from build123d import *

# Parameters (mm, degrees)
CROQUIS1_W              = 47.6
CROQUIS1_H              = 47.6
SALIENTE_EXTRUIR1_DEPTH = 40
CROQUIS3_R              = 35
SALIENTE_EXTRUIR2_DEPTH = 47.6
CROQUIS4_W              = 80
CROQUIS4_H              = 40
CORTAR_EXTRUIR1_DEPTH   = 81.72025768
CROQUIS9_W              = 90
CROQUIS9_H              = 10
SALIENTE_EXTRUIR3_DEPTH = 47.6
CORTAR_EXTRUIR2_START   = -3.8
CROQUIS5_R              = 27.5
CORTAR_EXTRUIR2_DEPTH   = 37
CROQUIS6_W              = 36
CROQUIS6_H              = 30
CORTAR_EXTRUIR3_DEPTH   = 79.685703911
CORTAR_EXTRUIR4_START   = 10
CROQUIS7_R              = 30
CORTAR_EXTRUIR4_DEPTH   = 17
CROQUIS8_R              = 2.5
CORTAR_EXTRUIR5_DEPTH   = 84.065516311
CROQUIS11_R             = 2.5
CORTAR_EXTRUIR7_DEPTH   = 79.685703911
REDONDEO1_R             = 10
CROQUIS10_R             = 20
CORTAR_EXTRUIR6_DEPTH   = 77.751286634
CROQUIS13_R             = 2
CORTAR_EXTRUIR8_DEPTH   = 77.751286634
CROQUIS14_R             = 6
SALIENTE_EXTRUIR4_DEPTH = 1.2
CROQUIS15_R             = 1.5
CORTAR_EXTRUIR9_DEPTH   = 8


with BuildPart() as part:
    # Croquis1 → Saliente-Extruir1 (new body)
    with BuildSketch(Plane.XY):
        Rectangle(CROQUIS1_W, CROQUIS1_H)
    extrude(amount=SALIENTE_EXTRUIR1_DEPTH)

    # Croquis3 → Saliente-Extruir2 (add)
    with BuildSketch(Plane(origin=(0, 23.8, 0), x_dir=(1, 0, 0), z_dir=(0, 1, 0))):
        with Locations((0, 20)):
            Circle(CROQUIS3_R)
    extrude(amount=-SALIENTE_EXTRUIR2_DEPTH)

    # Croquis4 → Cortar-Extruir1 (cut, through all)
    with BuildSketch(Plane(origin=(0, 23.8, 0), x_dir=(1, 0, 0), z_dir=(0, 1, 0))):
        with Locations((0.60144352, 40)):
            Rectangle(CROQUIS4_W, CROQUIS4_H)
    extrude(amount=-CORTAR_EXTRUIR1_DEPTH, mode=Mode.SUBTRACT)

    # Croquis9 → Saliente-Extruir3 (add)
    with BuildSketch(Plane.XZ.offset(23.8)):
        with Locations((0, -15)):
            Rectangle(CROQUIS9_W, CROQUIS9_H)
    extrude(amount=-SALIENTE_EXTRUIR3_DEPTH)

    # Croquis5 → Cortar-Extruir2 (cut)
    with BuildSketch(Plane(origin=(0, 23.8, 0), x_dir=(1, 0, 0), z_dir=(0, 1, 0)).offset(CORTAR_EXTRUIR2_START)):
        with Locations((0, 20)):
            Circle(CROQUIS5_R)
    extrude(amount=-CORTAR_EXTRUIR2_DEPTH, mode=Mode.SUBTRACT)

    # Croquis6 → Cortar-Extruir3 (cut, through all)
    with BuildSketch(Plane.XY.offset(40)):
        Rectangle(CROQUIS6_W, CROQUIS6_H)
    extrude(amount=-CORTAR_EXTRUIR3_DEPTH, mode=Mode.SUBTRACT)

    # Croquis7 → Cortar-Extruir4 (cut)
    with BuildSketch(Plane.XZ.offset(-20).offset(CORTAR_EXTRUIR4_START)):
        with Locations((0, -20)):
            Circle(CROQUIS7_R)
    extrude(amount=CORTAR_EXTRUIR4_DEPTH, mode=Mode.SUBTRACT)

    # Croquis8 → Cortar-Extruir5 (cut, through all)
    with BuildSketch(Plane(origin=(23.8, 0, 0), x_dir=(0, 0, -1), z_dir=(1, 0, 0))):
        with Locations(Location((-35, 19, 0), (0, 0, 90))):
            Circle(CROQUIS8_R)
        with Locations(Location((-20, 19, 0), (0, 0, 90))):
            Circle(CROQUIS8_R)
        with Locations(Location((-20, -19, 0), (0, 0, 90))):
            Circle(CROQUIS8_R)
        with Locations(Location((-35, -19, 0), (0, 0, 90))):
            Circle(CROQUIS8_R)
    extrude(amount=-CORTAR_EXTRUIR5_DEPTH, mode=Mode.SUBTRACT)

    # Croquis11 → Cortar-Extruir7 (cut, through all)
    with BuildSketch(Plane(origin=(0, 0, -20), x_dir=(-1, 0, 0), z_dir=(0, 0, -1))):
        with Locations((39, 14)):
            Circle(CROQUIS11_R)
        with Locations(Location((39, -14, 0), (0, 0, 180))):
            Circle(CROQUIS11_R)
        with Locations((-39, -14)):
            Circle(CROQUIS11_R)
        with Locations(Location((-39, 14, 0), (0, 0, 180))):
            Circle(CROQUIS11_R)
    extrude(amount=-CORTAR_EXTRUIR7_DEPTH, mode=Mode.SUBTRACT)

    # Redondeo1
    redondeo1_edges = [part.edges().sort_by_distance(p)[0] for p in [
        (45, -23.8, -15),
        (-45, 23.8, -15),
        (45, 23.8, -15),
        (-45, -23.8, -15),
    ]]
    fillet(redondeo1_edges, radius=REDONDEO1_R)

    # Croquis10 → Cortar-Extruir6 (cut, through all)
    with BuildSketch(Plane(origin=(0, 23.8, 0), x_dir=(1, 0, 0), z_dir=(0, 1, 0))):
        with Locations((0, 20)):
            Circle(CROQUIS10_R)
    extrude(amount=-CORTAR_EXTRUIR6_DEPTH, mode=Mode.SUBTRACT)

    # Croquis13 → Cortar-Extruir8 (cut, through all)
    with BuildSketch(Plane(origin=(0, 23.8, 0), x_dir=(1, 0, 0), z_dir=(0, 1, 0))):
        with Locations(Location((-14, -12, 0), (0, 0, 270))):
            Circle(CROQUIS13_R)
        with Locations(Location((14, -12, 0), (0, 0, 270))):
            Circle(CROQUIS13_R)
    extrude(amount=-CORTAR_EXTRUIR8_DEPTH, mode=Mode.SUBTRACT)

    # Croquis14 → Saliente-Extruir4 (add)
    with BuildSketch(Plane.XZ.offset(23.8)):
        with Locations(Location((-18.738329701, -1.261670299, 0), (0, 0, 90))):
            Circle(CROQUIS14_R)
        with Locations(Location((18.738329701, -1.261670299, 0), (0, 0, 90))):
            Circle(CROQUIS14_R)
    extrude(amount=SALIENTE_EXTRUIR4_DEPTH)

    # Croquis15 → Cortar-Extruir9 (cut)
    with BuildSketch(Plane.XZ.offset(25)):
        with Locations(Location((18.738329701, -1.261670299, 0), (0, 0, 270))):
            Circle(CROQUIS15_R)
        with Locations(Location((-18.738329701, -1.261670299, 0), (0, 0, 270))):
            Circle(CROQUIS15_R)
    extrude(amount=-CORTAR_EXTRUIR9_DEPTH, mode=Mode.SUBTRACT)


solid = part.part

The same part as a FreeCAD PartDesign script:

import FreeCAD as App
import Part
import Sketcher
from FreeCAD import Vector
Q = App.Units.Quantity


def edges_at(feature, points):
    """Names of the edges that pass closest to the given points."""
    edges = feature.Shape.Edges
    near = lambda p: min(range(len(edges)), key=lambda i: edges[i].distToShape(Part.Vertex(*p))[0])
    return sorted({f"Edge{near(p) + 1}" for p in points})


def add_polygon(sketch, points):
    """Adds a closed chain of lines whose ends are joined by coincident constraints."""
    first, n = sketch.GeometryCount, len(points)
    for a, b in zip(points, points[1:] + points[:1]):
        sketch.addGeometry(Part.LineSegment(App.Vector(*a, 0), App.Vector(*b, 0)), False)
    for i in range(n):
        sketch.addConstraint(Sketcher.Constraint("Coincident", first + i, 2, first + (i + 1) % n, 1))

doc = App.newDocument("Part")
params = doc.addObject("Spreadsheet::Sheet", "Params")
for row, (alias, value) in enumerate([
    ("sketch1_width", "47.6 mm"),
    ("pad1_length", "40 mm"),
    ("sketch2_diameter", "70 mm"),
    ("pad2_length", "47.6 mm"),
    ("sketch3_width", "80 mm"),
    ("sketch3_height", "40 mm"),
    ("sketch4_width", "90 mm"),
    ("sketch4_height", "10 mm"),
    ("pad3_length", "47.6 mm"),
    ("sketch5_diameter", "55 mm"),
    ("pocket2_length", "37 mm"),
    ("sketch6_width", "36 mm"),
    ("sketch6_height", "30 mm"),
    ("sketch7_diameter", "60 mm"),
    ("pocket4_length", "17 mm"),
    ("sketch8_diameter", "5 mm"),
    ("sketch9_diameter", "5 mm"),
    ("fillet_radius", "10 mm"),
    ("sketch10_diameter", "40 mm"),
    ("sketch11_diameter", "4 mm"),
    ("sketch12_diameter", "12 mm"),
    ("pad4_length", "1.2 mm"),
    ("sketch13_diameter", "3 mm"),
    ("pocket9_length", "8 mm"),
], start=1):
    params.set(f"A{row}", alias)
    params.set(f"B{row}", "=" + value)
    params.setAlias(f"B{row}", alias)

body = doc.addObject("PartDesign::Body", "Body")

# Sketch on XY plane
sketch1 = doc.addObject("Sketcher::SketchObject", "Sketch")
body.addObject(sketch1)
sketch1.AttachmentSupport = (doc.XY_Plane, [""])
sketch1.MapMode = "FlatFace"
add_polygon(sketch1, [(-23.8, 23.8), (-23.8, -23.8), (23.8, -23.8), (23.8, 23.8)])  # lines 0-3
sketch1.addConstraint([
    Sketcher.Constraint("Vertical", 0),
    Sketcher.Constraint("Horizontal", 1),
    Sketcher.Constraint("Vertical", 2),
    Sketcher.Constraint("Horizontal", 3),
    Sketcher.Constraint("Symmetric", 0, 2, 2, 2, -1, 1),
    Sketcher.Constraint("Equal", 3, 0),
    Sketcher.Constraint("DistanceX", 1, 1, 1, 2, Q("47.6 mm")),
])
sketch1.setExpression("Constraints[10]", "Params.sketch1_width")
pad1 = doc.addObject("PartDesign::Pad", "Pad")
body.addObject(pad1)
pad1.Profile = sketch1
pad1.setExpression("Length", "Params.pad1_length")

# Sketch on XZ plane
sketch2 = doc.addObject("Sketcher::SketchObject", "Sketch001")
body.addObject(sketch2)
sketch2.AttachmentSupport = (doc.XZ_Plane, [""])
sketch2.MapMode = "FlatFace"
sketch2.AttachmentOffset = App.Placement(Vector(0, 0, -23.8), App.Rotation())
sketch2.addGeometry(Part.Circle(Vector(0, -20, 0), Vector(0, 0, 1), 35), False)
sketch2.addConstraint([
    Sketcher.Constraint("PointOnObject", 0, 3, -2),
    Sketcher.Constraint("Diameter", 0, Q("70 mm")),
    Sketcher.Constraint("DistanceY", 0, 3, -1, 1, Q("20 mm")),
])
sketch2.setExpression("Constraints[1]", "Params.sketch2_diameter")
pad2 = doc.addObject("PartDesign::Pad", "Pad001")
body.addObject(pad2)
pad2.Profile = sketch2
pad2.setExpression("Length", "Params.pad2_length")

# Sketch on XZ plane
sketch3 = doc.addObject("Sketcher::SketchObject", "Sketch002")
body.addObject(sketch3)
sketch3.AttachmentSupport = (doc.XZ_Plane, [""])
sketch3.MapMode = "FlatFace"
sketch3.AttachmentOffset = App.Placement(Vector(0, 0, -23.8), App.Rotation())
add_polygon(sketch3, [(-39.398556, -60), (-39.398556, -20), (40.601444, -20), (40.601444, -60)])  # lines 0-3
sketch3.addConstraint([
    Sketcher.Constraint("Vertical", 0),
    Sketcher.Constraint("Horizontal", 1),
    Sketcher.Constraint("Vertical", 2),
    Sketcher.Constraint("Horizontal", 3),
    Sketcher.Constraint("DistanceX", 1, 1, 1, 2, Q("80 mm")),
    Sketcher.Constraint("DistanceY", 0, 1, 0, 2, Q("40 mm")),
    Sketcher.Constraint("DistanceY", 0, 2, -1, 1, Q("20 mm")),
    Sketcher.Constraint("DistanceX", 0, 2, -1, 1, Q("39.398556 mm")),
])
sketch3.setExpression("Constraints[8]", "Params.sketch3_width")
sketch3.setExpression("Constraints[9]", "Params.sketch3_height")
pocket1 = doc.addObject("PartDesign::Pocket", "Pocket")
body.addObject(pocket1)
pocket1.Profile = sketch3
pocket1.Type = "ThroughAll"
pocket1.Reversed = True

# Sketch on XZ plane
sketch4 = doc.addObject("Sketcher::SketchObject", "Sketch003")
body.addObject(sketch4)
sketch4.AttachmentSupport = (doc.XZ_Plane, [""])
sketch4.MapMode = "FlatFace"
sketch4.AttachmentOffset = App.Placement(Vector(0, 0, 23.8), App.Rotation())
add_polygon(sketch4, [(-45, -10), (-45, -20), (45, -20), (45, -10)])  # lines 0-3
sketch4.addConstraint([
    Sketcher.Constraint("Vertical", 0),
    Sketcher.Constraint("Horizontal", 1),
    Sketcher.Constraint("Vertical", 2),
    Sketcher.Constraint("Horizontal", 3),
    Sketcher.Constraint("DistanceX", 1, 1, 1, 2, Q("90 mm")),
    Sketcher.Constraint("DistanceY", 0, 2, 0, 1, Q("10 mm")),
    Sketcher.Constraint("DistanceX", 0, 2, -1, 1, Q("45 mm")),
    Sketcher.Constraint("DistanceY", 0, 2, -1, 1, Q("20 mm")),
])
sketch4.setExpression("Constraints[8]", "Params.sketch4_width")
sketch4.setExpression("Constraints[9]", "Params.sketch4_height")
pad3 = doc.addObject("PartDesign::Pad", "Pad002")
body.addObject(pad3)
pad3.Profile = sketch4
pad3.setExpression("Length", "Params.pad3_length")
pad3.Reversed = True

# Sketch on XZ plane
sketch5 = doc.addObject("Sketcher::SketchObject", "Sketch004")
body.addObject(sketch5)
sketch5.AttachmentSupport = (doc.XZ_Plane, [""])
sketch5.MapMode = "FlatFace"
sketch5.AttachmentOffset = App.Placement(Vector(0, 0, -20), App.Rotation())
sketch5.addGeometry(Part.Circle(Vector(0, -20, 0), Vector(0, 0, 1), 27.5), False)
sketch5.addConstraint([
    Sketcher.Constraint("PointOnObject", 0, 3, -2),
    Sketcher.Constraint("Diameter", 0, Q("55 mm")),
    Sketcher.Constraint("DistanceY", 0, 3, -1, 1, Q("20 mm")),
])
sketch5.setExpression("Constraints[1]", "Params.sketch5_diameter")
pocket2 = doc.addObject("PartDesign::Pocket", "Pocket001")
body.addObject(pocket2)
pocket2.Profile = sketch5
pocket2.setExpression("Length", "Params.pocket2_length")
pocket2.Reversed = True

# Sketch on XY plane
sketch6 = doc.addObject("Sketcher::SketchObject", "Sketch005")
body.addObject(sketch6)
sketch6.AttachmentSupport = (doc.XY_Plane, [""])
sketch6.MapMode = "FlatFace"
sketch6.AttachmentOffset = App.Placement(Vector(0, 0, 40), App.Rotation())
add_polygon(sketch6, [(-18, 15), (-18, -15), (18, -15), (18, 15)])  # lines 0-3
sketch6.addConstraint([
    Sketcher.Constraint("Vertical", 0),
    Sketcher.Constraint("Horizontal", 1),
    Sketcher.Constraint("Vertical", 2),
    Sketcher.Constraint("Horizontal", 3),
    Sketcher.Constraint("Symmetric", 0, 2, 2, 2, -1, 1),
    Sketcher.Constraint("DistanceX", 1, 1, 1, 2, Q("36 mm")),
    Sketcher.Constraint("DistanceY", 0, 2, 0, 1, Q("30 mm")),
])
sketch6.setExpression("Constraints[9]", "Params.sketch6_width")
sketch6.setExpression("Constraints[10]", "Params.sketch6_height")
pocket3 = doc.addObject("PartDesign::Pocket", "Pocket002")
body.addObject(pocket3)
pocket3.Profile = sketch6
pocket3.Type = "ThroughAll"

# Sketch on XZ plane
sketch7 = doc.addObject("Sketcher::SketchObject", "Sketch006")
body.addObject(sketch7)
sketch7.AttachmentSupport = (doc.XZ_Plane, [""])
sketch7.MapMode = "FlatFace"
sketch7.AttachmentOffset = App.Placement(Vector(0, 0, -10), App.Rotation())
sketch7.addGeometry(Part.Circle(Vector(0, -20, 0), Vector(0, 0, 1), 30), False)
sketch7.addConstraint([
    Sketcher.Constraint("PointOnObject", 0, 3, -2),
    Sketcher.Constraint("Diameter", 0, Q("60 mm")),
    Sketcher.Constraint("DistanceY", 0, 3, -1, 1, Q("20 mm")),
])
sketch7.setExpression("Constraints[1]", "Params.sketch7_diameter")
pocket4 = doc.addObject("PartDesign::Pocket", "Pocket003")
body.addObject(pocket4)
pocket4.Profile = sketch7
pocket4.setExpression("Length", "Params.pocket4_length")
pocket4.Reversed = True

# Sketch on YZ plane
sketch8 = doc.addObject("Sketcher::SketchObject", "Sketch007")
body.addObject(sketch8)
sketch8.AttachmentSupport = (doc.YZ_Plane, [""])
sketch8.MapMode = "FlatFace"
sketch8.AttachmentOffset = App.Placement(Vector(0, 0, 23.8), App.Rotation())
sketch8.addGeometry([
    Part.Circle(Vector(19, 35, 0), Vector(0, 0, 1), 2.5),
    Part.Circle(Vector(19, 20, 0), Vector(0, 0, 1), 2.5),
    Part.Circle(Vector(-19, 20, 0), Vector(0, 0, 1), 2.5),
    Part.Circle(Vector(-19, 35, 0), Vector(0, 0, 1), 2.5),
], False)
sketch8.addConstraint([
    Sketcher.Constraint("Equal", 0, 1),
    Sketcher.Constraint("Equal", 1, 2),
    Sketcher.Constraint("Equal", 2, 3),
    Sketcher.Constraint("Symmetric", 1, 3, 2, 3, -2),
    Sketcher.Constraint("Symmetric", 0, 3, 3, 3, -2),
    Sketcher.Constraint("Vertical", 0, 3, 1, 3),
    Sketcher.Constraint("Diameter", 0, Q("5 mm")),
    Sketcher.Constraint("DistanceX", -1, 1, 0, 3, Q("19 mm")),
    Sketcher.Constraint("DistanceY", -1, 1, 0, 3, Q("35 mm")),
    Sketcher.Constraint("DistanceY", -1, 1, 1, 3, Q("20 mm")),
])
sketch8.setExpression("Constraints[6]", "Params.sketch8_diameter")
pocket5 = doc.addObject("PartDesign::Pocket", "Pocket004")
body.addObject(pocket5)
pocket5.Profile = sketch8
pocket5.Type = "ThroughAll"

# Sketch on XY plane
sketch9 = doc.addObject("Sketcher::SketchObject", "Sketch008")
body.addObject(sketch9)
sketch9.AttachmentSupport = (doc.XY_Plane, [""])
sketch9.MapMode = "FlatFace"
sketch9.AttachmentOffset = App.Placement(Vector(0, 0, -20), App.Rotation())
sketch9.addGeometry([
    Part.Circle(Vector(-39, 14, 0), Vector(0, 0, 1), 2.5),
    Part.Circle(Vector(-39, -14, 0), Vector(0, 0, 1), 2.5),
    Part.Circle(Vector(39, -14, 0), Vector(0, 0, 1), 2.5),
    Part.Circle(Vector(39, 14, 0), Vector(0, 0, 1), 2.5),
], False)
sketch9.addConstraint([
    Sketcher.Constraint("Equal", 0, 1),
    Sketcher.Constraint("Equal", 1, 2),
    Sketcher.Constraint("Equal", 2, 3),
    Sketcher.Constraint("Symmetric", 0, 3, 2, 3, -1, 1),
    Sketcher.Constraint("Symmetric", 1, 3, 3, 3, -1, 1),
    Sketcher.Constraint("Symmetric", 1, 3, 2, 3, -2),
    Sketcher.Constraint("Diameter", 0, Q("5 mm")),
    Sketcher.Constraint("DistanceX", 0, 3, -1, 1, Q("39 mm")),
    Sketcher.Constraint("DistanceY", -1, 1, 0, 3, Q("14 mm")),
])
sketch9.setExpression("Constraints[6]", "Params.sketch9_diameter")
pocket6 = doc.addObject("PartDesign::Pocket", "Pocket005")
body.addObject(pocket6)
pocket6.Profile = sketch9
pocket6.Type = "ThroughAll"
pocket6.Reversed = True
doc.recompute()

fillet = doc.addObject("PartDesign::Fillet", "Fillet")
body.addObject(fillet)
fillet.Base = (pocket6, edges_at(pocket6, [
    (45, -23.8, -15),
    (-45, 23.8, -15),
    (45, 23.8, -15),
    (-45, -23.8, -15),
]))
fillet.setExpression("Radius", "Params.fillet_radius")

# Sketch on XZ plane
sketch10 = doc.addObject("Sketcher::SketchObject", "Sketch009")
body.addObject(sketch10)
sketch10.AttachmentSupport = (doc.XZ_Plane, [""])
sketch10.MapMode = "FlatFace"
sketch10.AttachmentOffset = App.Placement(Vector(0, 0, -23.8), App.Rotation())
sketch10.addGeometry(Part.Circle(Vector(0, -20, 0), Vector(0, 0, 1), 20), False)
sketch10.addConstraint([
    Sketcher.Constraint("PointOnObject", 0, 3, -2),
    Sketcher.Constraint("Diameter", 0, Q("40 mm")),
    Sketcher.Constraint("DistanceY", 0, 3, -1, 1, Q("20 mm")),
])
sketch10.setExpression("Constraints[1]", "Params.sketch10_diameter")
pocket7 = doc.addObject("PartDesign::Pocket", "Pocket006")
body.addObject(pocket7)
pocket7.Profile = sketch10
pocket7.Type = "ThroughAll"
pocket7.Reversed = True

# Sketch on XZ plane
sketch11 = doc.addObject("Sketcher::SketchObject", "Sketch010")
body.addObject(sketch11)
sketch11.AttachmentSupport = (doc.XZ_Plane, [""])
sketch11.MapMode = "FlatFace"
sketch11.AttachmentOffset = App.Placement(Vector(0, 0, -23.8), App.Rotation())
sketch11.addGeometry([
    Part.Circle(Vector(-14, 12, 0), Vector(0, 0, 1), 2),
    Part.Circle(Vector(14, 12, 0), Vector(0, 0, 1), 2),
], False)
sketch11.addConstraint([
    Sketcher.Constraint("Equal", 0, 1),
    Sketcher.Constraint("Symmetric", 0, 3, 1, 3, -2),
    Sketcher.Constraint("Diameter", 0, Q("4 mm")),
    Sketcher.Constraint("DistanceX", 0, 3, -1, 1, Q("14 mm")),
    Sketcher.Constraint("DistanceY", -1, 1, 0, 3, Q("12 mm")),
])
sketch11.setExpression("Constraints[2]", "Params.sketch11_diameter")
pocket8 = doc.addObject("PartDesign::Pocket", "Pocket007")
body.addObject(pocket8)
pocket8.Profile = sketch11
pocket8.Type = "ThroughAll"
pocket8.Reversed = True

# Sketch on XZ plane
sketch12 = doc.addObject("Sketcher::SketchObject", "Sketch011")
body.addObject(sketch12)
sketch12.AttachmentSupport = (doc.XZ_Plane, [""])
sketch12.MapMode = "FlatFace"
sketch12.AttachmentOffset = App.Placement(Vector(0, 0, 23.8), App.Rotation())
sketch12.addGeometry([
    Part.Circle(Vector(-18.73833, -1.26167, 0), Vector(0, 0, 1), 6),
    Part.Circle(Vector(18.73833, -1.26167, 0), Vector(0, 0, 1), 6),
], False)
sketch12.addConstraint([
    Sketcher.Constraint("Equal", 0, 1),
    Sketcher.Constraint("Symmetric", 0, 3, 1, 3, -2),
    Sketcher.Constraint("Diameter", 0, Q("12 mm")),
    Sketcher.Constraint("DistanceX", 0, 3, -1, 1, Q("18.73833 mm")),
    Sketcher.Constraint("DistanceY", 0, 3, -1, 1, Q("1.26167 mm")),
])
sketch12.setExpression("Constraints[2]", "Params.sketch12_diameter")
pad4 = doc.addObject("PartDesign::Pad", "Pad003")
body.addObject(pad4)
pad4.Profile = sketch12
pad4.setExpression("Length", "Params.pad4_length")

# Sketch on XZ plane
sketch13 = doc.addObject("Sketcher::SketchObject", "Sketch012")
body.addObject(sketch13)
sketch13.AttachmentSupport = (doc.XZ_Plane, [""])
sketch13.MapMode = "FlatFace"
sketch13.AttachmentOffset = App.Placement(Vector(0, 0, 25), App.Rotation())
sketch13.addGeometry([
    Part.Circle(Vector(18.73833, -1.26167, 0), Vector(0, 0, 1), 1.5),
    Part.Circle(Vector(-18.73833, -1.26167, 0), Vector(0, 0, 1), 1.5),
], False)
sketch13.addConstraint([
    Sketcher.Constraint("Equal", 0, 1),
    Sketcher.Constraint("Symmetric", 0, 3, 1, 3, -2),
    Sketcher.Constraint("Diameter", 0, Q("3 mm")),
    Sketcher.Constraint("DistanceX", -1, 1, 0, 3, Q("18.73833 mm")),
    Sketcher.Constraint("DistanceY", 0, 3, -1, 1, Q("1.26167 mm")),
])
sketch13.setExpression("Constraints[2]", "Params.sketch13_diameter")
pocket9 = doc.addObject("PartDesign::Pocket", "Pocket008")
body.addObject(pocket9)
pocket9.Profile = sketch13
pocket9.setExpression("Length", "Params.pocket9_length")

doc.recompute()
